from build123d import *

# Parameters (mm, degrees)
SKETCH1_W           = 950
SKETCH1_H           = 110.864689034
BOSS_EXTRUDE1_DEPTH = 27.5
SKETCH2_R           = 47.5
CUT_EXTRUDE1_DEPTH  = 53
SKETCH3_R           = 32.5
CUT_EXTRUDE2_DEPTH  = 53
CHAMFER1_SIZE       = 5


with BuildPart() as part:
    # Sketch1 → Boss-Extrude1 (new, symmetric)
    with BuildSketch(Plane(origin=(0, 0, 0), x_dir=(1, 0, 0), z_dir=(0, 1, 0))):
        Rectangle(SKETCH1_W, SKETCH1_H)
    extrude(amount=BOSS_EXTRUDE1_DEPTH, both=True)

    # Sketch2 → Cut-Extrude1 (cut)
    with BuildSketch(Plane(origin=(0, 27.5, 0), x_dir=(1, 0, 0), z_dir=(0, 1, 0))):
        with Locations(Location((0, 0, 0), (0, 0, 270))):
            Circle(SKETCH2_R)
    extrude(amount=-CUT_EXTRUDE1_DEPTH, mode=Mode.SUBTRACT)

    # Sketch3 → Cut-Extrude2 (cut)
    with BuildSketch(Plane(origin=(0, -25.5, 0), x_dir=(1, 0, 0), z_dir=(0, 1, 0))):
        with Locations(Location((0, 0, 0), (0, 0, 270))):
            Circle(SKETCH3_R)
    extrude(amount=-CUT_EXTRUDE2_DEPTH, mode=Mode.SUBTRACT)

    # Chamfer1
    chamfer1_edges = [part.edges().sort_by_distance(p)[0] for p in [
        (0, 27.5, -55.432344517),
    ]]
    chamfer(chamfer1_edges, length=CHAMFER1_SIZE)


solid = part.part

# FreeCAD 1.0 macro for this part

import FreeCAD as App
import Part
import Sketcher
Q = App.Units.Quantity


def edges_at(feature, points):
    """Names of the edges that pass closest to the given points."""
    edges = feature.Shape.Edges
    near = lambda p: min(range(len(edges)), key=lambda i: edges[i].distToShape(Part.Vertex(*p))[0])
    return sorted({f"Edge{near(p) + 1}" for p in points})


def add_polygon(sketch, points):
    """Adds a closed chain of lines whose ends are joined by coincident constraints."""
    first, n = sketch.GeometryCount, len(points)
    for a, b in zip(points, points[1:] + points[:1]):
        sketch.addGeometry(Part.LineSegment(App.Vector(*a, 0), App.Vector(*b, 0)), False)
    for i in range(n):
        sketch.addConstraint(Sketcher.Constraint("Coincident", first + i, 2, first + (i + 1) % n, 1))

doc = App.newDocument("Part")
body = doc.addObject("PartDesign::Body", "Body")

sketch1 = body.newObject("Sketcher::SketchObject", "Sketch")
sketch1.AttachmentSupport = (doc.getObject("XZ_Plane"), [""])
sketch1.MapMode = "FlatFace"
add_polygon(sketch1, [(-475, -55.432345), (-475, 55.432345), (475, 55.432345), (475, -55.432345)])
sketch1.addConstraint([
    Sketcher.Constraint("Vertical", 0),
    Sketcher.Constraint("Horizontal", 1),
    Sketcher.Constraint("Vertical", 2),
    Sketcher.Constraint("Horizontal", 3),
    Sketcher.Constraint("Symmetric", 0, 2, 2, 2, -1, 1),
    Sketcher.Constraint("DistanceX", 1, 1, 1, 2, Q("950 mm")),
    Sketcher.Constraint("DistanceY", 0, 1, 0, 2, Q("110.864689 mm")),
])
pad1 = body.newObject("PartDesign::Pad", "Pad")
pad1.Profile = sketch1
pad1.Length = 55
pad1.Midplane = True

sketch2 = body.newObject("Sketcher::SketchObject", "Sketch001")
sketch2.AttachmentSupport = (doc.getObject("XZ_Plane"), [""])
sketch2.MapMode = "FlatFace"
sketch2.AttachmentOffset = App.Placement(App.Vector(0, 0, -27.5), App.Rotation())
sketch2.addGeometry(Part.Circle(App.Vector(0, 0, 0), App.Vector(0, 0, 1), 47.5), False)
sketch2.addConstraint([
    Sketcher.Constraint("Coincident", 0, 3, -1, 1),
    Sketcher.Constraint("Diameter", 0, Q("95 mm")),
])
pocket1 = body.newObject("PartDesign::Pocket", "Pocket")
pocket1.Profile = sketch2
pocket1.Length = 53
pocket1.Reversed = True

sketch3 = body.newObject("Sketcher::SketchObject", "Sketch002")
sketch3.AttachmentSupport = (doc.getObject("XZ_Plane"), [""])
sketch3.MapMode = "FlatFace"
sketch3.AttachmentOffset = App.Placement(App.Vector(0, 0, 25.5), App.Rotation())
sketch3.addGeometry(Part.Circle(App.Vector(0, 0, 0), App.Vector(0, 0, 1), 32.5), False)
sketch3.addConstraint([
    Sketcher.Constraint("Coincident", 0, 3, -1, 1),
    Sketcher.Constraint("Diameter", 0, Q("65 mm")),
])
pocket2 = body.newObject("PartDesign::Pocket", "Pocket001")
pocket2.Profile = sketch3
pocket2.Length = 53
pocket2.Reversed = True
doc.recompute()

chamfer = body.newObject("PartDesign::Chamfer", "Chamfer")
chamfer.Base = (pocket2, edges_at(pocket2, [(0, 27.5, -55.432)]))
chamfer.Size = 5

doc.recompute()
